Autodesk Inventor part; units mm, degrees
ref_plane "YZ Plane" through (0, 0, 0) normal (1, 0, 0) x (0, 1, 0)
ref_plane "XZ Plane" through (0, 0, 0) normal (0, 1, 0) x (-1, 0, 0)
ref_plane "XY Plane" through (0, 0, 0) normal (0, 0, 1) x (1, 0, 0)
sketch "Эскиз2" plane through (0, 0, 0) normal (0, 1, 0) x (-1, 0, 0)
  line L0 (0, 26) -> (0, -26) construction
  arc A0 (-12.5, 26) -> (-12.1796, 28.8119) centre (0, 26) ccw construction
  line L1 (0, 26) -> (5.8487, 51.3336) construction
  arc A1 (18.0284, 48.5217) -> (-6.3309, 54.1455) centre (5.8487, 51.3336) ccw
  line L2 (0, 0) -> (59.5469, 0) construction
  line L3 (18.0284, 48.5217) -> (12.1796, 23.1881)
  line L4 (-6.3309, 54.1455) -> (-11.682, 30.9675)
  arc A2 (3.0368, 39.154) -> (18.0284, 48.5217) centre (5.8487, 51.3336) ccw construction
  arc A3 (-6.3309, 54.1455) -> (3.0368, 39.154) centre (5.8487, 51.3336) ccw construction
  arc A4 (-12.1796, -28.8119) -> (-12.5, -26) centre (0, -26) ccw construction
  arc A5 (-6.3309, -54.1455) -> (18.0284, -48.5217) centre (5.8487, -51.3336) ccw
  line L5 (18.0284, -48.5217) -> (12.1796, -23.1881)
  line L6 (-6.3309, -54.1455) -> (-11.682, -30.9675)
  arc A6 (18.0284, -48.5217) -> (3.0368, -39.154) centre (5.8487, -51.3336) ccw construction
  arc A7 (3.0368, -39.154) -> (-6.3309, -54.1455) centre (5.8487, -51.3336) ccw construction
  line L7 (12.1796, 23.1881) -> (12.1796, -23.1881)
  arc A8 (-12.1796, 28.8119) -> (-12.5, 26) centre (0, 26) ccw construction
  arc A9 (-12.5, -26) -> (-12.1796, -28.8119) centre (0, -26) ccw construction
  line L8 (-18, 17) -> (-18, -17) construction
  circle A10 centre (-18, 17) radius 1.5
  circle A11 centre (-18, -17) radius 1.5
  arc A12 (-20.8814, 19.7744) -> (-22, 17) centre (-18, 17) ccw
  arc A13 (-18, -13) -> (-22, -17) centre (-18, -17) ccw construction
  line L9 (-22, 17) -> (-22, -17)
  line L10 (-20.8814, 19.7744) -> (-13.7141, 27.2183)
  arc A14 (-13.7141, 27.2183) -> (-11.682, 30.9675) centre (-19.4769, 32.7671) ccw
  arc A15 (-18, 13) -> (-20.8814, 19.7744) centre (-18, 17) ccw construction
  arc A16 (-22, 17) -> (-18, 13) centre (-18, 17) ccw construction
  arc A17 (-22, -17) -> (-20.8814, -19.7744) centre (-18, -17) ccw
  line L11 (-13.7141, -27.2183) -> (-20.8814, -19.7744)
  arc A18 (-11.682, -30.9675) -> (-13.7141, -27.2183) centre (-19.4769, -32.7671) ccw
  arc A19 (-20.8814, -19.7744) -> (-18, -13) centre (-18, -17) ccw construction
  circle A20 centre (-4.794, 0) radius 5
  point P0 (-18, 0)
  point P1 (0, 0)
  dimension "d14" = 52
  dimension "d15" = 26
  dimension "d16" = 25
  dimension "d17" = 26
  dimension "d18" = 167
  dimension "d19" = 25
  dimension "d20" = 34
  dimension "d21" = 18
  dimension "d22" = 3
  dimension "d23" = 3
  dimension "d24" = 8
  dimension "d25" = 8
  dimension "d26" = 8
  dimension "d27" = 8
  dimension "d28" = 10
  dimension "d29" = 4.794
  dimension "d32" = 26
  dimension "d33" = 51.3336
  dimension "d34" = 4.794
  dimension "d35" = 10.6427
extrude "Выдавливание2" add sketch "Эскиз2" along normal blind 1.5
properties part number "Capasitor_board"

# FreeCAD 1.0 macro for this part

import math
import FreeCAD as App
import Part
import Sketcher

V = App.Vector
Q = App.Units.Quantity

doc = App.newDocument("Part")
body = doc.addObject("PartDesign::Body", "Body")

sketch1 = body.newObject("Sketcher::SketchObject", "Sketch")
sketch1.AttachmentSupport = (doc.getObject("XZ_Plane"), [""])
sketch1.MapMode = "FlatFace"
sketch1.addGeometry(Part.LineSegment(V(-12.2, 23.2, 0), V(-18, 48.5, 0)), False)
sketch1.addGeometry(Part.ArcOfCircle(Part.Circle(V(-5.8, 51.3, 0), V(0, 0, 1), 12.5), math.radians(13), math.radians(193)), False)
sketch1.addGeometry(Part.LineSegment(V(6.3, 54.1, 0), V(11.7, 31, 0)), False)
sketch1.addGeometry(Part.ArcOfCircle(Part.Circle(V(19.5, 32.8, 0), V(0, 0, 1), 8), math.radians(-167), math.radians(-136)), False)
sketch1.addGeometry(Part.LineSegment(V(13.7, 27.2, 0), V(20.9, 19.8, 0)), False)
sketch1.addGeometry(Part.ArcOfCircle(Part.Circle(V(18, 17, 0), V(0, 0, 1), 4), math.radians(0), math.radians(44)), False)
sketch1.addGeometry(Part.LineSegment(V(22, 17, 0), V(22, -17, 0)), False)
sketch1.addGeometry(Part.ArcOfCircle(Part.Circle(V(18, -17, 0), V(0, 0, 1), 4), math.radians(-44), math.radians(0)), False)
sketch1.addGeometry(Part.LineSegment(V(20.9, -19.8, 0), V(13.7, -27.2, 0)), False)
sketch1.addGeometry(Part.ArcOfCircle(Part.Circle(V(19.5, -32.8, 0), V(0, 0, 1), 8), math.radians(136), math.radians(167)), False)
sketch1.addGeometry(Part.LineSegment(V(11.7, -31, 0), V(6.3, -54.1, 0)), False)
sketch1.addGeometry(Part.ArcOfCircle(Part.Circle(V(-5.8, -51.3, 0), V(0, 0, 1), 12.5), math.radians(167), math.radians(347)), False)
sketch1.addGeometry(Part.LineSegment(V(-18, -48.5, 0), V(-12.2, -23.2, 0)), False)
sketch1.addGeometry(Part.LineSegment(V(-12.2, -23.2, 0), V(-12.2, 23.2, 0)), False)
sketch1.addGeometry(Part.Circle(V(18, -17, 0), V(0, 0, 1), 1.5), False)
sketch1.addGeometry(Part.Circle(V(4.8, 0, 0), V(0, 0, 1), 5), False)
sketch1.addGeometry(Part.Circle(V(18, 17, 0), V(0, 0, 1), 1.5), False)
sketch1.addConstraint(Sketcher.Constraint("Tangent", 0, 2, 1, 2))
sketch1.addConstraint(Sketcher.Constraint("Tangent", 1, 1, 2, 1))
sketch1.addConstraint(Sketcher.Constraint("Tangent", 2, 2, 3, 1))
sketch1.addConstraint(Sketcher.Constraint("Tangent", 3, 2, 4, 1))
sketch1.addConstraint(Sketcher.Constraint("Tangent", 4, 2, 5, 2))
sketch1.addConstraint(Sketcher.Constraint("Tangent", 5, 1, 6, 1))
sketch1.addConstraint(Sketcher.Constraint("Tangent", 6, 2, 7, 2))
sketch1.addConstraint(Sketcher.Constraint("Tangent", 7, 1, 8, 1))
sketch1.addConstraint(Sketcher.Constraint("Tangent", 8, 2, 9, 1))
sketch1.addConstraint(Sketcher.Constraint("Tangent", 9, 2, 10, 1))
sketch1.addConstraint(Sketcher.Constraint("Tangent", 10, 2, 11, 2))
sketch1.addConstraint(Sketcher.Constraint("Tangent", 11, 1, 12, 1))
sketch1.addConstraint(Sketcher.Constraint("Coincident", 12, 2, 13, 1))
sketch1.addConstraint(Sketcher.Constraint("Coincident", 13, 2, 0, 1))
sketch1.addConstraint(Sketcher.Constraint("Vertical", 6))
sketch1.addConstraint(Sketcher.Constraint("Vertical", 13))
sketch1.addConstraint(Sketcher.Constraint("Coincident", 14, 3, 7, 3))
sketch1.addConstraint(Sketcher.Constraint("Coincident", 16, 3, 5, 3))
sketch1.addConstraint(Sketcher.Constraint("Equal", 5, 7))
sketch1.addConstraint(Sketcher.Constraint("Equal", 3, 9))
sketch1.addConstraint(Sketcher.Constraint("Equal", 1, 11))
sketch1.addConstraint(Sketcher.Constraint("Equal", 14, 16))
sketch1.addConstraint(Sketcher.Constraint("Symmetric", 3, 3, 9, 3, -1))
sketch1.addConstraint(Sketcher.Constraint("Symmetric", 1, 3, 11, 3, -1))
sketch1.addConstraint(Sketcher.Constraint("PointOnObject", 15, 3, -1))
sketch1.addConstraint(Sketcher.Constraint("Parallel", 0, 2))
sketch1.addConstraint(Sketcher.Constraint("Parallel", 10, 12))
sketch1.addConstraint(Sketcher.Constraint("Vertical", 4, 2, 7, 1))
sketch1.addConstraint(Sketcher.Constraint("Diameter", 14, 3.0))
sketch1.addConstraint(Sketcher.Constraint("Diameter", 15, 10.0))
sketch1.addConstraint(Sketcher.Constraint("Radius", 3, 8.0))
sketch1.addConstraint(Sketcher.Constraint("Radius", 5, 4.0))
sketch1.addConstraint(Sketcher.Constraint("Radius", 1, 12.5))
sketch1.addConstraint(Sketcher.Constraint("DistanceY", 6, 2, 6, 1, 34.0))
sketch1.addConstraint(Sketcher.Constraint("Distance", 0, 26.0))
sketch1.addConstraint(Sketcher.Constraint("DistanceX", -1, 1, 5, 3, 18.0))
sketch1.addConstraint(Sketcher.Constraint("Angle", 0, Q("103.0002 deg")))
sketch1.addConstraint(Sketcher.Constraint("DistanceX", -1, 1, 15, 3, 4.794))
sketch1.addConstraint(Sketcher.Constraint("DistanceY", -1, 1, 1, 3, 51.3336))
sketch1.addConstraint(Sketcher.Constraint("DistanceX", -1, 1, 3, 3, 19.477))
sketch1.addConstraint(Sketcher.Constraint("DistanceY", -1, 1, 3, 3, 32.767))
pad1 = body.newObject("PartDesign::Pad", "Pad")
pad1.Profile = sketch1
pad1.Length = 1.5
pad1.Reversed = True

doc.recompute()
